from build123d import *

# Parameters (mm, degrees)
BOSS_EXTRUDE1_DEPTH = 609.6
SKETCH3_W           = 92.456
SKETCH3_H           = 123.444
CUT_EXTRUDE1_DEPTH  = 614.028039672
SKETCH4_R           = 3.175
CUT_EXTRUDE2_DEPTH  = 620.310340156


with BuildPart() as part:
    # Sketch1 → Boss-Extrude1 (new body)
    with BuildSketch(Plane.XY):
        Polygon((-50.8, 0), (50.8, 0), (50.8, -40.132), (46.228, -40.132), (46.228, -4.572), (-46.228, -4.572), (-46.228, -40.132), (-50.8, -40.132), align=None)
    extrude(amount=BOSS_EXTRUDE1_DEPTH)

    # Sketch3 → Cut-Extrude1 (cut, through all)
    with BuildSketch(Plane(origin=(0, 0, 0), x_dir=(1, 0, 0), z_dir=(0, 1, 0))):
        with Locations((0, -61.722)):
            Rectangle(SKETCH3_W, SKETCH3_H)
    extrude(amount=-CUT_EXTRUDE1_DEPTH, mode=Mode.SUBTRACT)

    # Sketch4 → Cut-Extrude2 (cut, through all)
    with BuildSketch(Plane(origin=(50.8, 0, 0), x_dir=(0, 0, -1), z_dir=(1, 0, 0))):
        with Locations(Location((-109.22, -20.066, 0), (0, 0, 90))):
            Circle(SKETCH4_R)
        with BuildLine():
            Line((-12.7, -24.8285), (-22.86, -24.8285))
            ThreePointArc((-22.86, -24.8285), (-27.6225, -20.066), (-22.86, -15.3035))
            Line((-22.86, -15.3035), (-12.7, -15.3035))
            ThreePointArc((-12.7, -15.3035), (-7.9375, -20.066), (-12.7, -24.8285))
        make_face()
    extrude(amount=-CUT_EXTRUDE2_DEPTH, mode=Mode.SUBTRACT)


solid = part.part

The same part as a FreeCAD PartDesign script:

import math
import FreeCAD as App
import Part
import Sketcher
from FreeCAD import Vector
Q = App.Units.Quantity


def add_polygon(sketch, points):
    """Adds a closed chain of lines whose ends are joined by coincident constraints."""
    first, n = sketch.GeometryCount, len(points)
    for a, b in zip(points, points[1:] + points[:1]):
        sketch.addGeometry(Part.LineSegment(App.Vector(*a, 0), App.Vector(*b, 0)), False)
    for i in range(n):
        sketch.addConstraint(Sketcher.Constraint("Coincident", first + i, 2, first + (i + 1) % n, 1))

doc = App.newDocument("Part")
params = doc.addObject("Spreadsheet::Sheet", "Params")
for row, (alias, value) in enumerate([
    ("sketch1_width", "4 in"),
    ("sketch1_height", "1.4 in"),
    ("sketch1_width2", "0.18 in"),
    ("sketch1_height2", "1.58 in"),
    ("pad1_length", "24 in"),
    ("sketch2_width", "3.64 in"),
    ("sketch2_height", "4.86 in"),
    ("sketch3_diameter", "0.25 in"),
    ("sketch3_height", "0.4 in"),
    ("sketch3_radius", "0.1875 in"),
], start=1):
    params.set(f"A{row}", alias)
    params.set(f"B{row}", "=" + value)
    params.setAlias(f"B{row}", alias)

body = doc.addObject("PartDesign::Body", "Body")

# Sketch on XY plane
sketch1 = body.newObject("Sketcher::SketchObject", "Sketch")
sketch1.AttachmentSupport = (doc.getObject("XY_Plane"), [""])
sketch1.MapMode = "FlatFace"
add_polygon(sketch1, [(50.8, 0), (-50.8, 0), (-50.8, -40.132), (-46.228, -40.132), (-46.228, -4.572), (46.228, -4.572), (46.228, -40.132), (50.8, -40.132)])  # lines 0-7
sketch1.addConstraint(Sketcher.Constraint("Horizontal", 0))
sketch1.addConstraint(Sketcher.Constraint("Vertical", 1))
sketch1.addConstraint(Sketcher.Constraint("Horizontal", 2))
sketch1.addConstraint(Sketcher.Constraint("Vertical", 3))
sketch1.addConstraint(Sketcher.Constraint("Horizontal", 4))
sketch1.addConstraint(Sketcher.Constraint("Vertical", 5))
sketch1.addConstraint(Sketcher.Constraint("Horizontal", 6))
sketch1.addConstraint(Sketcher.Constraint("Vertical", 7))
sketch1.addConstraint(Sketcher.Constraint("Symmetric", 0, 2, 7, 2, -1, 1))
sketch1.addConstraint(Sketcher.Constraint("Symmetric", 2, 2, 5, 2, -2))
sketch1.addConstraint(Sketcher.Constraint("DistanceX", 0, 2, 0, 1, Q("4 in")))
sketch1.addConstraint(Sketcher.Constraint("DistanceY", 3, 1, 3, 2, Q("1.4 in")))
sketch1.addConstraint(Sketcher.Constraint("DistanceX", 2, 1, 2, 2, Q("0.18 in")))
sketch1.addConstraint(Sketcher.Constraint("DistanceY", 1, 2, 1, 1, Q("1.58 in")))
sketch1.setExpression("Constraints[18]", "Params.sketch1_width")
sketch1.setExpression("Constraints[19]", "Params.sketch1_height")
sketch1.setExpression("Constraints[20]", "Params.sketch1_width2")
sketch1.setExpression("Constraints[21]", "Params.sketch1_height2")
pad1 = body.newObject("PartDesign::Pad", "Pad")
pad1.Profile = sketch1
pad1.setExpression("Length", "Params.pad1_length")

# Sketch on XZ plane
sketch2 = body.newObject("Sketcher::SketchObject", "Sketch001")
sketch2.AttachmentSupport = (doc.getObject("XZ_Plane"), [""])
sketch2.MapMode = "FlatFace"
add_polygon(sketch2, [(-46.228, 0), (-46.228, 123.444), (46.228, 123.444), (46.228, 0)])  # lines 0-3
sketch2.addConstraint(Sketcher.Constraint("Vertical", 0))
sketch2.addConstraint(Sketcher.Constraint("Horizontal", 1))
sketch2.addConstraint(Sketcher.Constraint("Vertical", 2))
sketch2.addConstraint(Sketcher.Constraint("Horizontal", 3))
sketch2.addConstraint(Sketcher.Constraint("Symmetric", 2, 2, 3, 2, -1, 1))
sketch2.addConstraint(Sketcher.Constraint("DistanceX", 1, 1, 1, 2, Q("3.64 in")))
sketch2.addConstraint(Sketcher.Constraint("DistanceY", 0, 1, 0, 2, Q("4.86 in")))
sketch2.setExpression("Constraints[9]", "Params.sketch2_width")
sketch2.setExpression("Constraints[10]", "Params.sketch2_height")
pocket1 = body.newObject("PartDesign::Pocket", "Pocket")
pocket1.Profile = sketch2
pocket1.Type = "ThroughAll"
pocket1.Reversed = True

# Sketch on YZ plane
sketch3 = body.newObject("Sketcher::SketchObject", "Sketch002")
sketch3.AttachmentSupport = (doc.getObject("YZ_Plane"), [""])
sketch3.MapMode = "FlatFace"
sketch3.AttachmentOffset = App.Placement(Vector(0, 0, 2 * 25.4), App.Rotation())
sketch3.addGeometry(Part.Circle(Vector(-20.066, 109.22, 0), Vector(0, 0, 1), 3.175), False)
sketch3.addGeometry(Part.LineSegment(Vector(-24.8285, 22.86, 0), Vector(-24.8285, 12.7, 0)), False)
sketch3.addGeometry(Part.ArcOfCircle(Part.Circle(Vector(-20.066, 12.7, 0), Vector(0, 0, 1), 4.7625), math.radians(180), math.radians(360)), False)
sketch3.addGeometry(Part.LineSegment(Vector(-15.3035, 12.7, 0), Vector(-15.3035, 22.86, 0)), False)
sketch3.addGeometry(Part.ArcOfCircle(Part.Circle(Vector(-20.066, 22.86, 0), Vector(0, 0, 1), 4.7625), math.radians(0), math.radians(180)), False)
sketch3.addConstraint(Sketcher.Constraint("Tangent", 1, 2, 2, 1))
sketch3.addConstraint(Sketcher.Constraint("Tangent", 2, 2, 3, 1))
sketch3.addConstraint(Sketcher.Constraint("Tangent", 3, 2, 4, 1))
sketch3.addConstraint(Sketcher.Constraint("Tangent", 4, 2, 1, 1))
sketch3.addConstraint(Sketcher.Constraint("Vertical", 1))
sketch3.addConstraint(Sketcher.Constraint("Vertical", 3))
sketch3.addConstraint(Sketcher.Constraint("Vertical", 0, 3, 2, 3))
sketch3.addConstraint(Sketcher.Constraint("Diameter", 0, Q("0.25 in")))
sketch3.addConstraint(Sketcher.Constraint("DistanceY", 1, 2, 1, 1, Q("0.4 in")))
sketch3.addConstraint(Sketcher.Constraint("Radius", 2, Q("0.1875 in")))
sketch3.addConstraint(Sketcher.Constraint("DistanceY", -1, 1, 0, 3, Q("4.3 in")))
sketch3.addConstraint(Sketcher.Constraint("DistanceY", -1, 1, 2, 3, Q("0.5 in")))
sketch3.addConstraint(Sketcher.Constraint("DistanceX", 0, 3, -1, 1, Q("0.79 in")))
sketch3.setExpression("Constraints[7]", "Params.sketch3_diameter")
sketch3.setExpression("Constraints[8]", "Params.sketch3_height")
sketch3.setExpression("Constraints[9]", "Params.sketch3_radius")
pocket2 = body.newObject("PartDesign::Pocket", "Pocket001")
pocket2.Profile = sketch3
pocket2.Type = "ThroughAll"

doc.recompute()
